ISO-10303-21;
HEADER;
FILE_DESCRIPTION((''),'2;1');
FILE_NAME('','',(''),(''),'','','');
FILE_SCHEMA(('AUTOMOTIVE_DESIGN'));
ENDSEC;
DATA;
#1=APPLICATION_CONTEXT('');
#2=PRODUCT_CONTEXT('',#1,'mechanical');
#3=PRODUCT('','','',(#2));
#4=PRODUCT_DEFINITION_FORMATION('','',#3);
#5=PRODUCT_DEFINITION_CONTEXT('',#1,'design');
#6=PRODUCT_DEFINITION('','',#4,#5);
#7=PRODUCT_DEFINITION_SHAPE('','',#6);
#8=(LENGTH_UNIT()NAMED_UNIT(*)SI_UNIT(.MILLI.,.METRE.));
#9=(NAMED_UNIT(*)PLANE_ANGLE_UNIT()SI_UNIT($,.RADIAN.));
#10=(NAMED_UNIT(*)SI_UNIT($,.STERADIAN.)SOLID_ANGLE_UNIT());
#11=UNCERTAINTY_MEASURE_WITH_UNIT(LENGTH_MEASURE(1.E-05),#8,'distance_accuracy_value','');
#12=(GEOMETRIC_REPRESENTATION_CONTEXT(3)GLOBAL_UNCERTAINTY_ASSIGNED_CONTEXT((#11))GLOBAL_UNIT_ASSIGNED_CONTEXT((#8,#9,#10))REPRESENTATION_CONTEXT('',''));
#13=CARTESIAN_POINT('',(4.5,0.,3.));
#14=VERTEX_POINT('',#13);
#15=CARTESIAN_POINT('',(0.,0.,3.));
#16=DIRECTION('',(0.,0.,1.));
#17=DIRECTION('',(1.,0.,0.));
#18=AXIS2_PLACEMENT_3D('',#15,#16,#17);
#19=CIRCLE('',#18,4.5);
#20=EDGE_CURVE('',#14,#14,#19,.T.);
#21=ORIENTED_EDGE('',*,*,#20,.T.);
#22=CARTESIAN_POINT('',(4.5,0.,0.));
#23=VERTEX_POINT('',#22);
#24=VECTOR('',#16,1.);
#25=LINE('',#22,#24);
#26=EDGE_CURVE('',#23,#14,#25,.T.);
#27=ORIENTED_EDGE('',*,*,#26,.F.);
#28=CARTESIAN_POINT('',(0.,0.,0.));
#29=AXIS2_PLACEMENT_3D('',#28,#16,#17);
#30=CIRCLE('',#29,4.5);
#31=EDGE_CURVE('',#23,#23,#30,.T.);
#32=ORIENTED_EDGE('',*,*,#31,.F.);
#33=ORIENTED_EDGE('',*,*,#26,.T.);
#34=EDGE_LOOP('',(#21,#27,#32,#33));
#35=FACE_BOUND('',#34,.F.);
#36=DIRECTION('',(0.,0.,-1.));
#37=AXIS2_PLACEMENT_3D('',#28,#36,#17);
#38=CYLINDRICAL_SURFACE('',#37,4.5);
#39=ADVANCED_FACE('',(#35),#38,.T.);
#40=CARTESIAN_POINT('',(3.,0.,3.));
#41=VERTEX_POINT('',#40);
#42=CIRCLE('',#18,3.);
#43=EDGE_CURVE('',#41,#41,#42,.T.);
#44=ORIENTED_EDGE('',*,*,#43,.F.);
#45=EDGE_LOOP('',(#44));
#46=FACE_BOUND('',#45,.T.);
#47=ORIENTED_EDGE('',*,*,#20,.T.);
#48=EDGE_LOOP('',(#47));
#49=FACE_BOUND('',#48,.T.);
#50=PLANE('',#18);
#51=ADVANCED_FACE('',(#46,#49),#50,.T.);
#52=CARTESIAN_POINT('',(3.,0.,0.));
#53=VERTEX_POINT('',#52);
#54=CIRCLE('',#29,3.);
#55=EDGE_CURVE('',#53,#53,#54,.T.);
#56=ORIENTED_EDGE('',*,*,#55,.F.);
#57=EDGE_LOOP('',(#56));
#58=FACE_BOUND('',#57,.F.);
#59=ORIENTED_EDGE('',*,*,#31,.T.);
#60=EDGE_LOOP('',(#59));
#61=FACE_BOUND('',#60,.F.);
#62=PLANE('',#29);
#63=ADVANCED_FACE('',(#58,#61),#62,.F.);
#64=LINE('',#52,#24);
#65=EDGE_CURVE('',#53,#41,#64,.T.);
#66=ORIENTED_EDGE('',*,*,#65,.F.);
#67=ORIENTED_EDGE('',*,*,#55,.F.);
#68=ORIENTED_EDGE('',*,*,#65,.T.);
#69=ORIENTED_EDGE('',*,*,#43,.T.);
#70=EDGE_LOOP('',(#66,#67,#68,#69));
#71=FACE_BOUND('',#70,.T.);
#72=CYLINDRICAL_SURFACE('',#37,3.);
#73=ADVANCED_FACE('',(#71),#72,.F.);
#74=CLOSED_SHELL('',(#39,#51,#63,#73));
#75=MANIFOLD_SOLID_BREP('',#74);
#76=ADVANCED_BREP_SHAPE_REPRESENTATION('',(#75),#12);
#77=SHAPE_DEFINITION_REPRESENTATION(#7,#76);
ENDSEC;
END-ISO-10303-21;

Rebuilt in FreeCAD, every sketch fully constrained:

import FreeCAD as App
import Part
import Sketcher

doc = App.newDocument("Part")
body = doc.addObject("PartDesign::Body", "Body")

sketch1 = body.newObject("Sketcher::SketchObject", "Sketch")
sketch1.AttachmentSupport = (doc.getObject("XY_Plane"), [""])
sketch1.MapMode = "FlatFace"
sketch1.addGeometry([
    Part.Circle(App.Vector(0, 0, 0), App.Vector(0, 0, 1), 4.5),
    Part.Circle(App.Vector(0, 0, 0), App.Vector(0, 0, 1), 3),
], False)
sketch1.addConstraint([
    Sketcher.Constraint("Coincident", 0, 3, -1, 1),
    Sketcher.Constraint("Coincident", 1, 3, -1, 1),
    Sketcher.Constraint("Diameter", 0, 9.0),
    Sketcher.Constraint("Diameter", 1, 6.0),
])
pad1 = body.newObject("PartDesign::Pad", "Pad")
pad1.Profile = sketch1
pad1.Length = 3

doc.recompute()
